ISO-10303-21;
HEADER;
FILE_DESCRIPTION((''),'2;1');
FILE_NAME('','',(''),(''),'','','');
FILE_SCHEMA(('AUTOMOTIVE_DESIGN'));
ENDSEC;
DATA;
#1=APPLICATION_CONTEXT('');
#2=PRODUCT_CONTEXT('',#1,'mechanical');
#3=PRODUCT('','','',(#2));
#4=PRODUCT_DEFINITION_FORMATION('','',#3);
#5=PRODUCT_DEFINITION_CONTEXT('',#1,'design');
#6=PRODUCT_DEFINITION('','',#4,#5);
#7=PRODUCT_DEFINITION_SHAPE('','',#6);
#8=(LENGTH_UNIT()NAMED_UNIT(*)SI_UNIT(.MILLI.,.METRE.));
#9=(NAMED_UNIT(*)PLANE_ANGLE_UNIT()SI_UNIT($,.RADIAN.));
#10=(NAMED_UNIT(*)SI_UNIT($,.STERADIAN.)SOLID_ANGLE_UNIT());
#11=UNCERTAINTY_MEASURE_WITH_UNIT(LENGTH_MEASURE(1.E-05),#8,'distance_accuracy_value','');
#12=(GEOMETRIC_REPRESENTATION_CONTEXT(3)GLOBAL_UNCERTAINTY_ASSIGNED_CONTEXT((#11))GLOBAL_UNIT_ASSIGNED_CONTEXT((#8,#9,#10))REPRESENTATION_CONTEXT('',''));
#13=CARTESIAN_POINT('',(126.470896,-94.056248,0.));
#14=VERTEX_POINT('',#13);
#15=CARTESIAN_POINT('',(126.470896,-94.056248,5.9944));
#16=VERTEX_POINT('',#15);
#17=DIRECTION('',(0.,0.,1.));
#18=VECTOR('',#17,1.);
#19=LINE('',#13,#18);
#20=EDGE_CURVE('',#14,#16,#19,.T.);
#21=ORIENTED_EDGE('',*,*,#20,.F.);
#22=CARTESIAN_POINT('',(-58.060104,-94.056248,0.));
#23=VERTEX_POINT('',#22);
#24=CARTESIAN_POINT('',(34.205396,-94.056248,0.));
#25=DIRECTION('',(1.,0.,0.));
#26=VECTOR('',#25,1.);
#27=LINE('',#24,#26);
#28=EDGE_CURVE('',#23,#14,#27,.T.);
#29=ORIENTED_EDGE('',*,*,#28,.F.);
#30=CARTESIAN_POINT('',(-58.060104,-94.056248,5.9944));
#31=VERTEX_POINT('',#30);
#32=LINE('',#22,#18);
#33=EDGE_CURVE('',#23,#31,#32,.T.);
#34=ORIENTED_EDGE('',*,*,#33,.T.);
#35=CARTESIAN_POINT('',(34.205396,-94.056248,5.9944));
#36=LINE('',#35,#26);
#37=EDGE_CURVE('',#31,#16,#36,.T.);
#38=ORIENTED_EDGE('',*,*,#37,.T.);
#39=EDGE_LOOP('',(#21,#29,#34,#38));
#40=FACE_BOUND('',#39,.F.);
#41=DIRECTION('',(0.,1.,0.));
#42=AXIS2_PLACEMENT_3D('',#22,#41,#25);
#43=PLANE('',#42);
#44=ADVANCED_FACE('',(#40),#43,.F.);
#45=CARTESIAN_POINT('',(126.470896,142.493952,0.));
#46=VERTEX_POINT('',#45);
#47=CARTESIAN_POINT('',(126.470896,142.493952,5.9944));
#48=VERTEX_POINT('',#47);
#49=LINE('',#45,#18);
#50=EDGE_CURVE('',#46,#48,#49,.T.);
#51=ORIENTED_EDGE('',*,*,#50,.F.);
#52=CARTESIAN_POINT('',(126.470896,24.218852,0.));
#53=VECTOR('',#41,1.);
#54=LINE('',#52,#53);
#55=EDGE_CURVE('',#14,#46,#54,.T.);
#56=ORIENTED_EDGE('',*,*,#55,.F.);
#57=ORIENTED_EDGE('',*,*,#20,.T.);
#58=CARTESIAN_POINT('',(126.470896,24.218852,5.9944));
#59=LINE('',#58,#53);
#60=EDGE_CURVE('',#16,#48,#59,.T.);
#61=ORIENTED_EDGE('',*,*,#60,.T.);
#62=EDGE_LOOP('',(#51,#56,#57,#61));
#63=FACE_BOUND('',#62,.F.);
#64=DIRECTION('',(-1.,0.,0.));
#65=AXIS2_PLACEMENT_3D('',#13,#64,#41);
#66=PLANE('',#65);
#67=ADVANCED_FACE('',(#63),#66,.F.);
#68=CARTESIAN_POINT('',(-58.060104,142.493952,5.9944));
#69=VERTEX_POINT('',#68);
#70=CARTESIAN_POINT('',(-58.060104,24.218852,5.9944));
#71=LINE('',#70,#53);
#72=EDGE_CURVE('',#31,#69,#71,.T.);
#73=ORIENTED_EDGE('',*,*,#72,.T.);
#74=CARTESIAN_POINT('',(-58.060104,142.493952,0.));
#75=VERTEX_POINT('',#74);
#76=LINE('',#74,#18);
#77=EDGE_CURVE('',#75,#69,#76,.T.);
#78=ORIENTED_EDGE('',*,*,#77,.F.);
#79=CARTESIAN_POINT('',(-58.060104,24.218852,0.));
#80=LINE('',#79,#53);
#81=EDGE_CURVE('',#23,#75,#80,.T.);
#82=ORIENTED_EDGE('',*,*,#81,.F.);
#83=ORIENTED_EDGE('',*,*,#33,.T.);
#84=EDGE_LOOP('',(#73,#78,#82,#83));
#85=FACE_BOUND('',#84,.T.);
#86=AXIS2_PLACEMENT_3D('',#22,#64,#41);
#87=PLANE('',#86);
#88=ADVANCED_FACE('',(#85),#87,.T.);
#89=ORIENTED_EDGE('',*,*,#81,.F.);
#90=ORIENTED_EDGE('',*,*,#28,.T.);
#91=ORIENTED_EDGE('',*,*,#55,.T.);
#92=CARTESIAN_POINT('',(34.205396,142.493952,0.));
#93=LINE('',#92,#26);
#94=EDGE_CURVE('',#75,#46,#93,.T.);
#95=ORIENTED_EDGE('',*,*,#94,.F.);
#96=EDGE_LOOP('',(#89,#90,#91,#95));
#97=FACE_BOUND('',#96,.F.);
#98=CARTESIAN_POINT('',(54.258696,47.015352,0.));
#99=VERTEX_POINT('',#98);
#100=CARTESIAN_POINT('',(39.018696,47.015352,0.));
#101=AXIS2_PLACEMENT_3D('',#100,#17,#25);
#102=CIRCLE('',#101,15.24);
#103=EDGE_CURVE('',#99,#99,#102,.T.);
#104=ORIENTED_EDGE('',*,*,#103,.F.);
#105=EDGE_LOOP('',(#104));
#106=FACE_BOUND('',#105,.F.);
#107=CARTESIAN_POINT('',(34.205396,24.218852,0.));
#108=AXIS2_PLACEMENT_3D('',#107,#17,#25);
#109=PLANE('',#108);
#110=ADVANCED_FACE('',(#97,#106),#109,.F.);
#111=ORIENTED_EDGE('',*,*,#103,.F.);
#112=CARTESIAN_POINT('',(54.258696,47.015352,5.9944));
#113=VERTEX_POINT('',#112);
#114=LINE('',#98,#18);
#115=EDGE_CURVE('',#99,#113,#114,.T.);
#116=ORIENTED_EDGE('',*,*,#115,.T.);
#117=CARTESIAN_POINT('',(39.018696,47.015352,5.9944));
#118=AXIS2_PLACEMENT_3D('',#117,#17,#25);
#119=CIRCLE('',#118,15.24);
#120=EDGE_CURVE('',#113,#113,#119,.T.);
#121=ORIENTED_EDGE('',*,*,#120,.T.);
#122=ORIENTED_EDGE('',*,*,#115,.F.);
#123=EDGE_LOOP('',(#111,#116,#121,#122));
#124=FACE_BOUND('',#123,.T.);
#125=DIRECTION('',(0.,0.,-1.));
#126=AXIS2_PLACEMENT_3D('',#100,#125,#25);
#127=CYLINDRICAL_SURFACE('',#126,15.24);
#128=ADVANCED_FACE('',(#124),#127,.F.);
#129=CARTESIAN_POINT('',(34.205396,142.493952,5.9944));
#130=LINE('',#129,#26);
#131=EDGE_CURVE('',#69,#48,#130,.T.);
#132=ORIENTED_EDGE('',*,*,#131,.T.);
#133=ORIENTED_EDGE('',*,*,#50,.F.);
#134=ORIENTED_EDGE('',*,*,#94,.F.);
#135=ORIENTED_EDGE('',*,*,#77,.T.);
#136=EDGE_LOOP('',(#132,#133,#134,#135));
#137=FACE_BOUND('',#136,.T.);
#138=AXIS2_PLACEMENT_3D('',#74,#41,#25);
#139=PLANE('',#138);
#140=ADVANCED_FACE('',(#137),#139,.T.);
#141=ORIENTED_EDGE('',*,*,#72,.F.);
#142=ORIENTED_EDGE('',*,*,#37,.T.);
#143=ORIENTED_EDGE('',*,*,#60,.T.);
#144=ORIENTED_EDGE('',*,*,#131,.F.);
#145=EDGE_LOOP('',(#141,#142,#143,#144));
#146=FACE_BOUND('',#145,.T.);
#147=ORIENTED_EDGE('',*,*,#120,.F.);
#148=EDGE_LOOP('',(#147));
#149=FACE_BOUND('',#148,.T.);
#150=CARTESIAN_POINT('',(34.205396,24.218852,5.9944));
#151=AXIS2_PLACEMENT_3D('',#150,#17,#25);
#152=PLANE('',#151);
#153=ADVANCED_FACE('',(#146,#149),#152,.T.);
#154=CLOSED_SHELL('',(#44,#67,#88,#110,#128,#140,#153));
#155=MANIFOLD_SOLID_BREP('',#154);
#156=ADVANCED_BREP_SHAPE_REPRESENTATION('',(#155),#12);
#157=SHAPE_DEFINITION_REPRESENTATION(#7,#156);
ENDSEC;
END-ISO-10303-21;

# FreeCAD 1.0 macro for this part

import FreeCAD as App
import Part
import Sketcher

V = App.Vector
Q = App.Units.Quantity

doc = App.newDocument("Part")
body = doc.addObject("PartDesign::Body", "Body")

sketch1 = body.newObject("Sketcher::SketchObject", "Sketch")
sketch1.AttachmentSupport = (doc.getObject("XY_Plane"), [""])
sketch1.MapMode = "FlatFace"
sketch1.addGeometry([
    Part.LineSegment(V(-58, 142, 0), V(-58, -94, 0)),
    Part.LineSegment(V(-58, -94, 0), V(126, -94, 0)),
    Part.LineSegment(V(126, -94, 0), V(126, 142, 0)),
    Part.LineSegment(V(126, 142, 0), V(-58, 142, 0)),
    Part.Circle(V(39, 47, 0), V(0, 0, 1), 15),
], False)
sketch1.addConstraint([
    Sketcher.Constraint("Coincident", 0, 2, 1, 1),
    Sketcher.Constraint("Coincident", 1, 2, 2, 1),
    Sketcher.Constraint("Coincident", 2, 2, 3, 1),
    Sketcher.Constraint("Coincident", 3, 2, 0, 1),
    Sketcher.Constraint("Vertical", 0),
    Sketcher.Constraint("Horizontal", 1),
    Sketcher.Constraint("Vertical", 2),
    Sketcher.Constraint("Horizontal", 3),
    Sketcher.Constraint("Diameter", 4, Q("1.2 in")),
    Sketcher.Constraint("DistanceX", 1, 1, 1, 2, Q("7.265 in")),
    Sketcher.Constraint("DistanceY", 0, 2, 0, 1, Q("9.313 in")),
    Sketcher.Constraint("DistanceX", 0, 2, 4, 3, Q("3.822 in")),
    Sketcher.Constraint("DistanceY", 0, 2, 4, 3, Q("5.554 in")),
    Sketcher.Constraint("DistanceY", -1, 1, 2, 2, 142.493952),
    Sketcher.Constraint("DistanceX", -1, 1, 4, 3, 39.018696),
])
pad1 = body.newObject("PartDesign::Pad", "Pad")
pad1.Profile = sketch1
pad1.Length = Q("0.236 in")

doc.recompute()
